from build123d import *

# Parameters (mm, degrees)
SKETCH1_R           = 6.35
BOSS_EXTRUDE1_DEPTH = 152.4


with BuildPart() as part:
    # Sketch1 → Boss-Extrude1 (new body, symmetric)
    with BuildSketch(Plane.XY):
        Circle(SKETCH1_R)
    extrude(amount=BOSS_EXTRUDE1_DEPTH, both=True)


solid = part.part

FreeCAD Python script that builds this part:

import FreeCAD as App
import Part
import Sketcher

V = App.Vector
Q = App.Units.Quantity

doc = App.newDocument("Part")
body = doc.addObject("PartDesign::Body", "Body")

sketch1 = body.newObject("Sketcher::SketchObject", "Sketch")
sketch1.AttachmentSupport = (doc.getObject("XY_Plane"), [""])
sketch1.MapMode = "FlatFace"
sketch1.addGeometry(Part.Circle(V(0, 0, 0), V(0, 0, 1), 6.35), False)
sketch1.addConstraint([
    Sketcher.Constraint("Coincident", 0, 3, -1, 1),
    Sketcher.Constraint("Diameter", 0, Q("0.5 in")),
])
pad1 = body.newObject("PartDesign::Pad", "Pad")
pad1.Profile = sketch1
pad1.Length = Q("12 in")
pad1.Midplane = True

doc.recompute()
